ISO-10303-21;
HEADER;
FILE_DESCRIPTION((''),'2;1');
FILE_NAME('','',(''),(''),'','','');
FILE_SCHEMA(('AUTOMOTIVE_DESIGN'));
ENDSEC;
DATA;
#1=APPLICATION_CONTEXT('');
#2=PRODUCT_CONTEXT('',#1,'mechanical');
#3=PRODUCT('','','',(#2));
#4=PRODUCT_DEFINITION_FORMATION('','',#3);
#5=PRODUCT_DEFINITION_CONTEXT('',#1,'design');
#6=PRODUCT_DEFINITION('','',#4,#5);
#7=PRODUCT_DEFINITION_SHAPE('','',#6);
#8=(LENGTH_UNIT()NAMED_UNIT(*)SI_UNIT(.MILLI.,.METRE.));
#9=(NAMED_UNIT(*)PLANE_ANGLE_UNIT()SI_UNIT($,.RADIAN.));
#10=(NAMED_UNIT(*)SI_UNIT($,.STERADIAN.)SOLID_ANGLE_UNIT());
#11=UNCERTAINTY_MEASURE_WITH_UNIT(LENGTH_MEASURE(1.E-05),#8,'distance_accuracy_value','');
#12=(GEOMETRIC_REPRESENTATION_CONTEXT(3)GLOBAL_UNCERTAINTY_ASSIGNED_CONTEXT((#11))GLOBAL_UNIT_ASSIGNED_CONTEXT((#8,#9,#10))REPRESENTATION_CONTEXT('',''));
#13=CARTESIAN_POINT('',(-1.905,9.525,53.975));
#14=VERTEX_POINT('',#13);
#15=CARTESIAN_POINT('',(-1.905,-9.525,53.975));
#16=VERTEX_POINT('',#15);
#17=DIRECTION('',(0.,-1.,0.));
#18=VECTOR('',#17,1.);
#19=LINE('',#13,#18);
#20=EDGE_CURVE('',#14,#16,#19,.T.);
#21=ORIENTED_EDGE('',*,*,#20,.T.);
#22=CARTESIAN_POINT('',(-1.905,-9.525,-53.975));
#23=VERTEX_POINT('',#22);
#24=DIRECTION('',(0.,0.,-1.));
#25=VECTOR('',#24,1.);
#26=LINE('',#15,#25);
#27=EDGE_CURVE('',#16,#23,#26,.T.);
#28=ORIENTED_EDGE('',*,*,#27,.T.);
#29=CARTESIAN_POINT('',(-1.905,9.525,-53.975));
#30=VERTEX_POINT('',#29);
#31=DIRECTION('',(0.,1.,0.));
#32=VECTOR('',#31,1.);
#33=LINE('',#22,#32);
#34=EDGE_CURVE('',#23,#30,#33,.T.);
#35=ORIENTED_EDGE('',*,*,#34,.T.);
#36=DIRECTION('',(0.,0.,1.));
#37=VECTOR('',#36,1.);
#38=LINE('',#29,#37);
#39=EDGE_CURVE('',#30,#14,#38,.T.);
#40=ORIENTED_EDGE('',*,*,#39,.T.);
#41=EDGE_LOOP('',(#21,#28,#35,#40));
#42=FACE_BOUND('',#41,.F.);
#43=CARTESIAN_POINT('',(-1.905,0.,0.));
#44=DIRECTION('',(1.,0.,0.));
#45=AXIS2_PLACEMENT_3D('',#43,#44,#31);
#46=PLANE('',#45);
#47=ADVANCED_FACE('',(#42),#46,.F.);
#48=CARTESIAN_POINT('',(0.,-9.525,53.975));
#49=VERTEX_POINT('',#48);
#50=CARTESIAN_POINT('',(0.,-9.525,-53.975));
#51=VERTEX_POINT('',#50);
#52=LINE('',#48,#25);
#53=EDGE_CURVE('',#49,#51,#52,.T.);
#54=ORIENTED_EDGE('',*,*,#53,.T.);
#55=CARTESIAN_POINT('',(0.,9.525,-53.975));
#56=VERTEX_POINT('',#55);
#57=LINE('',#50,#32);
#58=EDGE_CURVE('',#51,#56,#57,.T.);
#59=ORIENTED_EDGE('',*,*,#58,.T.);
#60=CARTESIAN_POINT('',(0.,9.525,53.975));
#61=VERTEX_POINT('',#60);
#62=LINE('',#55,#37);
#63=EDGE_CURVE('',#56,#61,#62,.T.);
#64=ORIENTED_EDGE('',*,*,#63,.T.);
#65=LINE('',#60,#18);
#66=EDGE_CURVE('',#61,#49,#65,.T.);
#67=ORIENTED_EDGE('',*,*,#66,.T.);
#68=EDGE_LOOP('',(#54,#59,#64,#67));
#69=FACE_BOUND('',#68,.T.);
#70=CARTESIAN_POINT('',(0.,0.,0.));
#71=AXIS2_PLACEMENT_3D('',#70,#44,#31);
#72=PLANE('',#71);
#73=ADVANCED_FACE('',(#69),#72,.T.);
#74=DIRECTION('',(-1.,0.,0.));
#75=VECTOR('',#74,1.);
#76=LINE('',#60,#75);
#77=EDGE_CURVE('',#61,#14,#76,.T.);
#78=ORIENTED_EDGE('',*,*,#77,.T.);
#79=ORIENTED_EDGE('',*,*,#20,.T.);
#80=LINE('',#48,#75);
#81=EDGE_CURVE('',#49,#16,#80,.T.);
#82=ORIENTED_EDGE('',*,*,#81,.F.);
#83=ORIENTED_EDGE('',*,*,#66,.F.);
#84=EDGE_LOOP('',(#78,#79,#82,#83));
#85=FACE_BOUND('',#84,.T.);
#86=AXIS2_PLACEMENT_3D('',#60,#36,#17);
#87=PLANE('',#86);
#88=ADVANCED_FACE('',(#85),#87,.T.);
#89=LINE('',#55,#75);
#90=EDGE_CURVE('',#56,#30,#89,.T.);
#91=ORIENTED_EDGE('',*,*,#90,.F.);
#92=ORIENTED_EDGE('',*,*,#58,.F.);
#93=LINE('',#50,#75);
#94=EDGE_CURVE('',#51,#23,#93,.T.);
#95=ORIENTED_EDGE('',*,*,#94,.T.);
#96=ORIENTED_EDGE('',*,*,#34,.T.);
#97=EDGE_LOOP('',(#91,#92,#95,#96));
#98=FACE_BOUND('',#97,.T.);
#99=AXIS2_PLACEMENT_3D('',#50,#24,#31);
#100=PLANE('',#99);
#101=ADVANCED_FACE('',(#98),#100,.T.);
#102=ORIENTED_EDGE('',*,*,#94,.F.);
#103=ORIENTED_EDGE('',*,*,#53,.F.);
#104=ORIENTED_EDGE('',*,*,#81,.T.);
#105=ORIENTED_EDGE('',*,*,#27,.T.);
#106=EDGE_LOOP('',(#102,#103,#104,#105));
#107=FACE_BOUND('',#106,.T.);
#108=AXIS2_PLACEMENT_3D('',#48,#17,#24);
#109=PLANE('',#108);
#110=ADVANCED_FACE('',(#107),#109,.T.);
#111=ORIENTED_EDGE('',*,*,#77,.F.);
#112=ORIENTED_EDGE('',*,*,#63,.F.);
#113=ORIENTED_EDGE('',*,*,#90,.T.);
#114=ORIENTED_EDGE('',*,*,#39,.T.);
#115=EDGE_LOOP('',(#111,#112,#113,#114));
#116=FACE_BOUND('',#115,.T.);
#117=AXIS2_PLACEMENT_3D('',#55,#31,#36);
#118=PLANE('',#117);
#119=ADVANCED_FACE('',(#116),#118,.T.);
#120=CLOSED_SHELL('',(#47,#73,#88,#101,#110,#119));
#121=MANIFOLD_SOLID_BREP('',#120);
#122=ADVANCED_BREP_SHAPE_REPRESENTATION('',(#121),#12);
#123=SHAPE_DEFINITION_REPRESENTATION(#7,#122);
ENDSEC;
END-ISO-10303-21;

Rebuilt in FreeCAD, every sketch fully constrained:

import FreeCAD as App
import Part
import Sketcher
Q = App.Units.Quantity

doc = App.newDocument("Part")
body = doc.addObject("PartDesign::Body", "Body")

# Sketch on YZ plane
sketch1 = body.newObject("Sketcher::SketchObject", "Sketch")
sketch1.AttachmentSupport = (doc.getObject("YZ_Plane"), [""])
sketch1.MapMode = "FlatFace"
sketch1.addGeometry(Part.LineSegment(App.Vector(10, 54, 0), App.Vector(-10, 54, 0)), False)
sketch1.addGeometry(Part.LineSegment(App.Vector(-10, 54, 0), App.Vector(-10, -54, 0)), False)
sketch1.addGeometry(Part.LineSegment(App.Vector(-10, -54, 0), App.Vector(10, -54, 0)), False)
sketch1.addGeometry(Part.LineSegment(App.Vector(10, -54, 0), App.Vector(10, 54, 0)), False)
sketch1.addConstraint(Sketcher.Constraint("Coincident", 0, 2, 1, 1))
sketch1.addConstraint(Sketcher.Constraint("Coincident", 1, 2, 2, 1))
sketch1.addConstraint(Sketcher.Constraint("Coincident", 2, 2, 3, 1))
sketch1.addConstraint(Sketcher.Constraint("Coincident", 3, 2, 0, 1))
sketch1.addConstraint(Sketcher.Constraint("Horizontal", 0))
sketch1.addConstraint(Sketcher.Constraint("Vertical", 1))
sketch1.addConstraint(Sketcher.Constraint("Horizontal", 2))
sketch1.addConstraint(Sketcher.Constraint("Vertical", 3))
sketch1.addConstraint(Sketcher.Constraint("Symmetric", 0, 2, 2, 2, -1, 1))
sketch1.addConstraint(Sketcher.Constraint("DistanceX", 0, 2, 0, 1, Q("0.75 in")))
sketch1.addConstraint(Sketcher.Constraint("DistanceY", 1, 2, 1, 1, Q("4.25 in")))
pad1 = body.newObject("PartDesign::Pad", "Pad")
pad1.Profile = sketch1
pad1.Length = Q("0.075 in")
pad1.Reversed = True

doc.recompute()
